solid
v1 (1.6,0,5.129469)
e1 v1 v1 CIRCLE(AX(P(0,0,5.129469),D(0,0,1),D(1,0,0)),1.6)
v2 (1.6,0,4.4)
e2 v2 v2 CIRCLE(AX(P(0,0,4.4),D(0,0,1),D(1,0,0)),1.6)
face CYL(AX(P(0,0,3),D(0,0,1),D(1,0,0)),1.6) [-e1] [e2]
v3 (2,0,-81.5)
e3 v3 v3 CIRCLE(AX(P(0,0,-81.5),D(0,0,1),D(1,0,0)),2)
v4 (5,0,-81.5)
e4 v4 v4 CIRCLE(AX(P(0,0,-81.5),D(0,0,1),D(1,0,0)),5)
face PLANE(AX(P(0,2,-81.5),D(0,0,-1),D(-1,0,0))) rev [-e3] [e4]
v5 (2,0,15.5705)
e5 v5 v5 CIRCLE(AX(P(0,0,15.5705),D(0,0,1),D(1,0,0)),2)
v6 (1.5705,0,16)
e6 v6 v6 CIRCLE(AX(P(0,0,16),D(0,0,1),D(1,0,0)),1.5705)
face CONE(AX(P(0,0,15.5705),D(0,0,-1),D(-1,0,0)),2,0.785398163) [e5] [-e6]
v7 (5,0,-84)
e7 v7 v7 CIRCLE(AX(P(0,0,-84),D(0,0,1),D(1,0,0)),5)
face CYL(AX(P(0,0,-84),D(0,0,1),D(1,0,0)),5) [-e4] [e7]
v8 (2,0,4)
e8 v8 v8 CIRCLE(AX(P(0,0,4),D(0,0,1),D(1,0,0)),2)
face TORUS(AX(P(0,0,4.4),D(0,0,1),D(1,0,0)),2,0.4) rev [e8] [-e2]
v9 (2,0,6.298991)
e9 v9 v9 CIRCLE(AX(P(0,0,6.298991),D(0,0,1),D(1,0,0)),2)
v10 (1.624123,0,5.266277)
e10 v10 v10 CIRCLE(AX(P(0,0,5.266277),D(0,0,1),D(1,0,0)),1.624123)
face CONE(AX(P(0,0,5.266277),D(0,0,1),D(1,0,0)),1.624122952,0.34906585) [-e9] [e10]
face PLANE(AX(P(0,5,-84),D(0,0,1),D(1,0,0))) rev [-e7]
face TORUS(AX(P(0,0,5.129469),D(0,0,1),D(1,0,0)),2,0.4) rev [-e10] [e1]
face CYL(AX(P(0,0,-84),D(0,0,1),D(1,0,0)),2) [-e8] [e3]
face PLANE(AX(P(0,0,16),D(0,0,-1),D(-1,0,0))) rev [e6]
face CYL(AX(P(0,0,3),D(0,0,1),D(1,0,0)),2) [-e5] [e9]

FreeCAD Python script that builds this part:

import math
import FreeCAD as App
import Part
import Sketcher

V = App.Vector
Q = App.Units.Quantity


def add_polygon(sketch, points):
    """Adds a closed chain of lines whose ends are joined by coincident constraints."""
    first, n = sketch.GeometryCount, len(points)
    for a, b in zip(points, points[1:] + points[:1]):
        sketch.addGeometry(Part.LineSegment(App.Vector(*a, 0), App.Vector(*b, 0)), False)
    for i in range(n):
        sketch.addConstraint(Sketcher.Constraint("Coincident", first + i, 2, first + (i + 1) % n, 1))

doc = App.newDocument("Part")
body = doc.addObject("PartDesign::Body", "Body")

sketch1 = body.newObject("Sketcher::SketchObject", "Sketch")
sketch1.AttachmentSupport = (doc.getObject("YZ_Plane"), [""])
sketch1.MapMode = "FlatFace"
add_polygon(sketch1, [(2, 4), (0, 4), (0, -84), (5, -84), (5, -81.5), (2, -81.5)])
sketch1.addConstraint([
    Sketcher.Constraint("Horizontal", 0),
    Sketcher.Constraint("Vertical", 1),
    Sketcher.Constraint("Horizontal", 2),
    Sketcher.Constraint("Vertical", 3),
    Sketcher.Constraint("Horizontal", 4),
    Sketcher.Constraint("Vertical", 5),
    Sketcher.Constraint("PointOnObject", 0, 2, -2),
    Sketcher.Constraint("DistanceX", 0, 2, 0, 1, 2.0),
    Sketcher.Constraint("DistanceX", 2, 1, 2, 2, 5.0),
    Sketcher.Constraint("DistanceY", 1, 2, 1, 1, 88.0),
    Sketcher.Constraint("DistanceY", 3, 1, 3, 2, 2.5),
    Sketcher.Constraint("DistanceY", -1, 1, 0, 2, 4.0),
])
revolution = body.newObject("PartDesign::Revolution", "Revolution")
revolution.Profile = sketch1
revolution.ReferenceAxis = (sketch1, ["V_Axis"])
revolution.Angle = 360

sketch2 = body.newObject("Sketcher::SketchObject", "Sketch001")
sketch2.AttachmentSupport = (doc.getObject("YZ_Plane"), [""])
sketch2.MapMode = "FlatFace"
sketch2.addGeometry([
    Part.LineSegment(V(1.57, 16, 0), V(0, 16, 0)),
    Part.LineSegment(V(0, 16, 0), V(0, 3, 0)),
    Part.LineSegment(V(0, 3, 0), V(2, 3, 0)),
    Part.LineSegment(V(2, 3, 0), V(2, 4, 0)),
    Part.ArcOfCircle(Part.Circle(V(2, 4.4, 0), V(0, 0, 1), 0.4), math.radians(-180), math.radians(-90)),
    Part.LineSegment(V(1.6, 4.4, 0), V(1.6, 5.13, 0)),
    Part.ArcOfCircle(Part.Circle(V(2, 5.13, 0), V(0, 0, 1), 0.4), math.radians(160), math.radians(180)),
    Part.LineSegment(V(1.62, 5.27, 0), V(2, 6.3, 0)),
    Part.LineSegment(V(2, 6.3, 0), V(2, 15.57, 0)),
    Part.LineSegment(V(2, 15.57, 0), V(1.57, 16, 0)),
], False)
sketch2.addConstraint([
    Sketcher.Constraint("Coincident", 0, 2, 1, 1),
    Sketcher.Constraint("Coincident", 1, 2, 2, 1),
    Sketcher.Constraint("Coincident", 2, 2, 3, 1),
    Sketcher.Constraint("Coincident", 3, 2, 4, 2),
    Sketcher.Constraint("Tangent", 4, 1, 5, 1),
    Sketcher.Constraint("Tangent", 5, 2, 6, 2),
    Sketcher.Constraint("Tangent", 6, 1, 7, 1),
    Sketcher.Constraint("Coincident", 7, 2, 8, 1),
    Sketcher.Constraint("Coincident", 8, 2, 9, 1),
    Sketcher.Constraint("Coincident", 9, 2, 0, 1),
    Sketcher.Constraint("Horizontal", 0),
    Sketcher.Constraint("Vertical", 1),
    Sketcher.Constraint("Horizontal", 2),
    Sketcher.Constraint("Vertical", 3),
    Sketcher.Constraint("Vertical", 5),
    Sketcher.Constraint("Vertical", 8),
    Sketcher.Constraint("Equal", 4, 6),
    Sketcher.Constraint("PointOnObject", 0, 2, -2),
    Sketcher.Constraint("Vertical", 6, 3, 2, 2),
    Sketcher.Constraint("Vertical", 3, 2, 7, 2),
    Sketcher.Constraint("Radius", 4, 0.4),
    Sketcher.Constraint("DistanceX", 2, 1, 2, 2, 2.0),
    Sketcher.Constraint("DistanceY", 1, 2, 1, 1, 13.0),
    Sketcher.Constraint("DistanceY", 3, 1, 3, 2, 1.0),
    Sketcher.Constraint("Angle", 7, Q("70 deg")),
    Sketcher.Constraint("Angle", 9, Q("135 deg")),
    Sketcher.Constraint("DistanceY", -1, 1, 0, 2, 16.0),
    Sketcher.Constraint("DistanceX", 0, 2, 0, 1, 1.5705),
    Sketcher.Constraint("DistanceY", 5, 1, 5, 2, 0.729469),
])
revolution2 = body.newObject("PartDesign::Revolution", "Revolution001")
revolution2.Profile = sketch2
revolution2.ReferenceAxis = (sketch2, ["V_Axis"])
revolution2.Angle = 360

doc.recompute()
